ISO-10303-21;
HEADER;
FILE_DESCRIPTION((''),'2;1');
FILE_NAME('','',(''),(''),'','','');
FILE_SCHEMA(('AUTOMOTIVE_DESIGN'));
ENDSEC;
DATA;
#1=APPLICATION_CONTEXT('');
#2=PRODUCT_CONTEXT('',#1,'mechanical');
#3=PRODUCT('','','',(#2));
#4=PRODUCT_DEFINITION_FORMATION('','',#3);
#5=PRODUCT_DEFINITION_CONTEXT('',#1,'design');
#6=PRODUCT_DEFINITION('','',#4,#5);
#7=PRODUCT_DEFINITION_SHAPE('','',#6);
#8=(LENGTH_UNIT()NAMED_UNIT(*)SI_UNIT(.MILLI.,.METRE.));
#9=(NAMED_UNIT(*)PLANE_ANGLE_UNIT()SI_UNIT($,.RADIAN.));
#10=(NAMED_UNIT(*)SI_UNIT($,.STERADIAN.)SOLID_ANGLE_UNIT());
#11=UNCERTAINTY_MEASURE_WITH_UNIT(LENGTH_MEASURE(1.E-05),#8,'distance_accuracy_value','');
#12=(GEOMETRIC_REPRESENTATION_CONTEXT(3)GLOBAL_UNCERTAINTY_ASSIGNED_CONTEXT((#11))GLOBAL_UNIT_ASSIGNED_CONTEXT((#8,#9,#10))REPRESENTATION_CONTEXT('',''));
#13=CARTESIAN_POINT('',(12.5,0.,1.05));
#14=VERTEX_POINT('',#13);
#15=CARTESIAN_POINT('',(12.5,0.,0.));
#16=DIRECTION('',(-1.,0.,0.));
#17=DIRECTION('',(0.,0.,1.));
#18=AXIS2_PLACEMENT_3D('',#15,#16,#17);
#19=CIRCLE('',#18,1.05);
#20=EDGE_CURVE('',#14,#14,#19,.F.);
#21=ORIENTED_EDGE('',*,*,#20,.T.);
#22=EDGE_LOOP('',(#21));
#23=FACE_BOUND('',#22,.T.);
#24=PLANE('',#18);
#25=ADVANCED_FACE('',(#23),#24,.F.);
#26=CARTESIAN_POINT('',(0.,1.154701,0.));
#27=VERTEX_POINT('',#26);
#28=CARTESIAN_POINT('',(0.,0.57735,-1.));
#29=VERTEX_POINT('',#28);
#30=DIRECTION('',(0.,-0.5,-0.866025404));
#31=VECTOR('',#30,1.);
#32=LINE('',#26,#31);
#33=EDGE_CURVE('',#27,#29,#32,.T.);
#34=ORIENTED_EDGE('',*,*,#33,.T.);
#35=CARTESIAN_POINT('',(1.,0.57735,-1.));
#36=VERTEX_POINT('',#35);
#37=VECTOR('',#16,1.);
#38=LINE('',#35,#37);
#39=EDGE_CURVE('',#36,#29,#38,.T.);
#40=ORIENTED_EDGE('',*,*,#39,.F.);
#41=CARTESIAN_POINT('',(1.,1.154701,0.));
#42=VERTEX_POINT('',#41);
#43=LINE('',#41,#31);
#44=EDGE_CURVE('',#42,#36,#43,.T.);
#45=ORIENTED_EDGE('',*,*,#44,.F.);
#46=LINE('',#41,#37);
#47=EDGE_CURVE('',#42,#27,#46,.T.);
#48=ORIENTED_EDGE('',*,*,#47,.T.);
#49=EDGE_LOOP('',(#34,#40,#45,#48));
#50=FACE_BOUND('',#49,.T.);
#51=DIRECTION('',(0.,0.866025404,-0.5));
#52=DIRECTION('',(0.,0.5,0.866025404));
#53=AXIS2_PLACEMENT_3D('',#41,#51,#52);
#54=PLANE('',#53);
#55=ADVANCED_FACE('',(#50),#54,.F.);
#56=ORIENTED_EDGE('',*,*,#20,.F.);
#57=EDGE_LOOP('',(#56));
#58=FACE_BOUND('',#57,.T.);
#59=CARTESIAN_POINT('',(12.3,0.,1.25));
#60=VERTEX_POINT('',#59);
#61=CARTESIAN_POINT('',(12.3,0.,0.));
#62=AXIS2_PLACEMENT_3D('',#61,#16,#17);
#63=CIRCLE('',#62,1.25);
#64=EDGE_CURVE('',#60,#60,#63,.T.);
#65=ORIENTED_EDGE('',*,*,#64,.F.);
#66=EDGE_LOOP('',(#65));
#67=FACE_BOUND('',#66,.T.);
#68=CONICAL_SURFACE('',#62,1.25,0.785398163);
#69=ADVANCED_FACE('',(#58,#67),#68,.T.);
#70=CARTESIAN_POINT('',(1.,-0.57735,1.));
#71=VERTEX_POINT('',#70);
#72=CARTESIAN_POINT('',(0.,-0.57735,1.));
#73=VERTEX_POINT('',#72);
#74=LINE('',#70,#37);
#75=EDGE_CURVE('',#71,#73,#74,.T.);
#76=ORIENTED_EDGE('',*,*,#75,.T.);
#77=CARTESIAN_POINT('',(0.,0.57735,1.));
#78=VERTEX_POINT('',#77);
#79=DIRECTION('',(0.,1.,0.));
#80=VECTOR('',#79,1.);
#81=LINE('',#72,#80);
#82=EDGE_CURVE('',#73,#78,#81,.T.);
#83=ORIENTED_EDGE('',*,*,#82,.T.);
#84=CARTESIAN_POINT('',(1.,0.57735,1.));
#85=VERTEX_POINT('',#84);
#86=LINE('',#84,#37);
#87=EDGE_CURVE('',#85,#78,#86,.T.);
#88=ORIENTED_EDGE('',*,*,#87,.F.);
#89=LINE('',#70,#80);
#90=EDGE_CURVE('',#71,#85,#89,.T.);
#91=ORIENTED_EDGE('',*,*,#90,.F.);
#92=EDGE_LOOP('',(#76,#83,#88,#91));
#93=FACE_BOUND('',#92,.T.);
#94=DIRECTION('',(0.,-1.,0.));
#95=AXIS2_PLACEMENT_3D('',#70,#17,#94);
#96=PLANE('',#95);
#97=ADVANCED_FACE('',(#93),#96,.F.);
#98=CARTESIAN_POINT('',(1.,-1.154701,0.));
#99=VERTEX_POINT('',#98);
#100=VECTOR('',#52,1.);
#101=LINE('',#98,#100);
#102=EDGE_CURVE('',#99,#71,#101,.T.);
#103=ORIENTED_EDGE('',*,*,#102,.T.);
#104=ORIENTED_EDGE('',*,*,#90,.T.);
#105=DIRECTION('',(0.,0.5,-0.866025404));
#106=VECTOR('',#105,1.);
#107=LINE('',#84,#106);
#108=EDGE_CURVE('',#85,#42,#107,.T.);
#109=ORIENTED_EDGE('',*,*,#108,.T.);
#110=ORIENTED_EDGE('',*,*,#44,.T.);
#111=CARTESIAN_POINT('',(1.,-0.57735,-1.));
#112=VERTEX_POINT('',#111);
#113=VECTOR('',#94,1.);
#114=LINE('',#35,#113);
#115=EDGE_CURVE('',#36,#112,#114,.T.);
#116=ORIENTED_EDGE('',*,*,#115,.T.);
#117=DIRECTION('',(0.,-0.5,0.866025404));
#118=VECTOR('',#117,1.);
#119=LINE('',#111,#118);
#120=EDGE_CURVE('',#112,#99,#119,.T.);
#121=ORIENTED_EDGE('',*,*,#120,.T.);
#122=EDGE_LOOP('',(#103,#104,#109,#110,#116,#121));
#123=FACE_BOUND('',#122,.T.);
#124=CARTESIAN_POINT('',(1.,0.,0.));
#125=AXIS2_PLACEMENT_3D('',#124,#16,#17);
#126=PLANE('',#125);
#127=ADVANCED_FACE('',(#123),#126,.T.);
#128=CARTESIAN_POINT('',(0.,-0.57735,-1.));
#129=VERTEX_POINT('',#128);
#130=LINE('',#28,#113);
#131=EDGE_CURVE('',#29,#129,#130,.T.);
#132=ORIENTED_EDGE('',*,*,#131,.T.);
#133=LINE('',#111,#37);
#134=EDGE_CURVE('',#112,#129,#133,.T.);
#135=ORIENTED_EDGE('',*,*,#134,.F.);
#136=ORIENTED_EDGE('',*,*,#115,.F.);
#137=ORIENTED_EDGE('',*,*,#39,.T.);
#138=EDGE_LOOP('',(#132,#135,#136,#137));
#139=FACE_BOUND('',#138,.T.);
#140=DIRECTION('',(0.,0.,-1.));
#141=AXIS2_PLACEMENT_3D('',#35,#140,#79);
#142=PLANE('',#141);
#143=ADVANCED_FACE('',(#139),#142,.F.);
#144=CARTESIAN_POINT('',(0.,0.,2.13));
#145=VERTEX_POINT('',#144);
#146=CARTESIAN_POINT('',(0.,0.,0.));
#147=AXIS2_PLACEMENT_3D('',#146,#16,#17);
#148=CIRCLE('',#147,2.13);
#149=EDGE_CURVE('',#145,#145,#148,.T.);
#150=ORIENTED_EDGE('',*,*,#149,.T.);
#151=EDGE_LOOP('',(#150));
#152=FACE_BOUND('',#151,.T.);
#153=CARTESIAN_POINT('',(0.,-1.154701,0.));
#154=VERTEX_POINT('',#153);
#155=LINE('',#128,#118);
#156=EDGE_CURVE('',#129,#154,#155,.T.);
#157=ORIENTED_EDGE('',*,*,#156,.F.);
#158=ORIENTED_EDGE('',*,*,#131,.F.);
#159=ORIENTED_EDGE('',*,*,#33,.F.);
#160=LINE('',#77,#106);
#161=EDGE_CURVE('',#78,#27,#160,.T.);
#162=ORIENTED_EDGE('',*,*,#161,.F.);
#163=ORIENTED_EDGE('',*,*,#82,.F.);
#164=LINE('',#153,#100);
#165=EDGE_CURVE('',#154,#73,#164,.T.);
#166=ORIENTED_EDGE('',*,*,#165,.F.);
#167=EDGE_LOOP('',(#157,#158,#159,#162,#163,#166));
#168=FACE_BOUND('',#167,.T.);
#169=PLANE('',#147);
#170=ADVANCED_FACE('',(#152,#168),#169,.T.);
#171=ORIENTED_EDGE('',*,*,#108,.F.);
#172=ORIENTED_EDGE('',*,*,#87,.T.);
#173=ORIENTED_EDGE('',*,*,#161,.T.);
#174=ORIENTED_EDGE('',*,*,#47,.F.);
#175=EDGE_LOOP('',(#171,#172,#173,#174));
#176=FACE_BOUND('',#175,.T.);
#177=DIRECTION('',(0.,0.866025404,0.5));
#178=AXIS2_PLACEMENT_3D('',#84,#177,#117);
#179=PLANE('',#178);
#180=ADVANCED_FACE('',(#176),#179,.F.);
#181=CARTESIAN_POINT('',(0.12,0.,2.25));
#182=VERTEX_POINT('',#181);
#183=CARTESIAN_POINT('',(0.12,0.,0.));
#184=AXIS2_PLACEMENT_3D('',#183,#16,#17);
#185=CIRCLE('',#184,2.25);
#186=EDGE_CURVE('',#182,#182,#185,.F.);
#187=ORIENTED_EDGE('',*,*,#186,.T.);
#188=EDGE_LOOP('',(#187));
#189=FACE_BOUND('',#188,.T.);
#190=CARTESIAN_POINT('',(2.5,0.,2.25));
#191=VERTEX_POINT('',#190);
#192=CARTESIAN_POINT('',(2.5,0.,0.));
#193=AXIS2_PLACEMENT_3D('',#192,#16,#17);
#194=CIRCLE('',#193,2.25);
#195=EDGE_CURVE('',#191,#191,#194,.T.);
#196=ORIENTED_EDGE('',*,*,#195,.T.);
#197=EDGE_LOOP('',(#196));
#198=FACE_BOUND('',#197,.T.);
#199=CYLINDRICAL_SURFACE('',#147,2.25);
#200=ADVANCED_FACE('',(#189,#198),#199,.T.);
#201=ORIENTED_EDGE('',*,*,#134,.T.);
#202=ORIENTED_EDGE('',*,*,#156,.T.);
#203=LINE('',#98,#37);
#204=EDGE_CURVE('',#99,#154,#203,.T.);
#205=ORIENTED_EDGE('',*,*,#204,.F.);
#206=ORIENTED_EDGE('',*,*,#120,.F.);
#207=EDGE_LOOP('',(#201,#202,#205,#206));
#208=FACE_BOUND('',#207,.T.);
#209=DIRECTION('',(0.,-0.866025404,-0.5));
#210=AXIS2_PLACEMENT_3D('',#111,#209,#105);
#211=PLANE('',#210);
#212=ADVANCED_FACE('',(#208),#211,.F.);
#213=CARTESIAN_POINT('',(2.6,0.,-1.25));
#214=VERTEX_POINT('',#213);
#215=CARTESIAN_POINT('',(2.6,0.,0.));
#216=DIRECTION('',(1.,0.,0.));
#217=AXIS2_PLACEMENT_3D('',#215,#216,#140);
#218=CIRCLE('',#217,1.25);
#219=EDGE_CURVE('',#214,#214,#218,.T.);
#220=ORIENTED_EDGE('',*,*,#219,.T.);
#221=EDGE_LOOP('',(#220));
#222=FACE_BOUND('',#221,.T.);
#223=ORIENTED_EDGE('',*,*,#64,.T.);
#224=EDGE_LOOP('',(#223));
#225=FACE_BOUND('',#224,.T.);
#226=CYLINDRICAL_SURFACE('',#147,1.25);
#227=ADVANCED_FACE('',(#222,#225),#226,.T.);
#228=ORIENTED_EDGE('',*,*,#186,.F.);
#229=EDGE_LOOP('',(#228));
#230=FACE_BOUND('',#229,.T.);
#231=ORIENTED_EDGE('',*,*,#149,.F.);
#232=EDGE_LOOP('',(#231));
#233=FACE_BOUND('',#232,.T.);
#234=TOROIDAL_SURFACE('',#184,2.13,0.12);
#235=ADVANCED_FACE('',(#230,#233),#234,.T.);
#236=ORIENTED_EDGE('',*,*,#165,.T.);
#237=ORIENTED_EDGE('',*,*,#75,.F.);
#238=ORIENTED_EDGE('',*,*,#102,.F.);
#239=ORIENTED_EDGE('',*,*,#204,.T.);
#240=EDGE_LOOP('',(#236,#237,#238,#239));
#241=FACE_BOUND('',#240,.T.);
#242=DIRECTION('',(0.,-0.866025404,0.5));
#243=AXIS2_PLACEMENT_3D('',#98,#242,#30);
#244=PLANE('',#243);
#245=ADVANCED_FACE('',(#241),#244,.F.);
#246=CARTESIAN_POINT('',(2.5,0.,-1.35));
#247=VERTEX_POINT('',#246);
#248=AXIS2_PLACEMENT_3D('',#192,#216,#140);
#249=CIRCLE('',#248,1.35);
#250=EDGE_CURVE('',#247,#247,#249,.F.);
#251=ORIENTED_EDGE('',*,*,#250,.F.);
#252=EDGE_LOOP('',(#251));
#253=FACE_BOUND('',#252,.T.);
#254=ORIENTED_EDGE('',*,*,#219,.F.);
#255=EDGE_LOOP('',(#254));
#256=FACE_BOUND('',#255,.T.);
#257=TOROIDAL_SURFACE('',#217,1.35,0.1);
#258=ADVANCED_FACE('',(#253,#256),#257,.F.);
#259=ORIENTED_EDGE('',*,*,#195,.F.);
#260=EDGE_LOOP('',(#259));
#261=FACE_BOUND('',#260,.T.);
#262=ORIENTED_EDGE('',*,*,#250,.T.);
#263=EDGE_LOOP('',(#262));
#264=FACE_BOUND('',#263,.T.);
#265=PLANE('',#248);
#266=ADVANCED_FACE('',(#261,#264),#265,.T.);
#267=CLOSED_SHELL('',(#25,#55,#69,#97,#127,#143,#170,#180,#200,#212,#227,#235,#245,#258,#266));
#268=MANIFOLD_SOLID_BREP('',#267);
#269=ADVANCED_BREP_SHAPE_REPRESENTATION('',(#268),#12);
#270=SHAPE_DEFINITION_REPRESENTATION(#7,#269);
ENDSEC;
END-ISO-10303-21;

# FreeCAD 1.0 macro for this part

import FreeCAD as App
import Part
import Sketcher
Q = App.Units.Quantity


def edges_at(feature, points):
    """Names of the edges that pass closest to the given points."""
    edges = feature.Shape.Edges
    near = lambda p: min(range(len(edges)), key=lambda i: edges[i].distToShape(Part.Vertex(*p))[0])
    return sorted({f"Edge{near(p) + 1}" for p in points})

doc = App.newDocument("Part")
body = doc.addObject("PartDesign::Body", "Body")

# Sketch on XY plane
sketch1 = body.newObject("Sketcher::SketchObject", "Sketch")
sketch1.AttachmentSupport = (doc.getObject("XY_Plane"), [""])
sketch1.MapMode = "FlatFace"
sketch1.addGeometry(Part.LineSegment(App.Vector(12.5, 0, 0), App.Vector(12.5, 1.2, 0)), False)
sketch1.addGeometry(Part.LineSegment(App.Vector(12.5, 1.2, 0), App.Vector(2.5, 1.2, 0)), False)
sketch1.addGeometry(Part.LineSegment(App.Vector(2.5, 1.2, 0), App.Vector(2.5, 2.2, 0)), False)
sketch1.addGeometry(Part.LineSegment(App.Vector(2.5, 2.2, 0), App.Vector(0, 2.2, 0)), False)
sketch1.addGeometry(Part.LineSegment(App.Vector(0, 2.2, 0), App.Vector(0, 0, 0)), False)
sketch1.addGeometry(Part.LineSegment(App.Vector(0, 0, 0), App.Vector(12.5, 0, 0)), False)
sketch1.addConstraint(Sketcher.Constraint("Coincident", 0, 2, 1, 1))
sketch1.addConstraint(Sketcher.Constraint("Coincident", 1, 2, 2, 1))
sketch1.addConstraint(Sketcher.Constraint("Coincident", 2, 2, 3, 1))
sketch1.addConstraint(Sketcher.Constraint("Coincident", 3, 2, 4, 1))
sketch1.addConstraint(Sketcher.Constraint("Coincident", 4, 2, 5, 1))
sketch1.addConstraint(Sketcher.Constraint("Coincident", 5, 2, 0, 1))
sketch1.addConstraint(Sketcher.Constraint("Vertical", 0))
sketch1.addConstraint(Sketcher.Constraint("Horizontal", 1))
sketch1.addConstraint(Sketcher.Constraint("Vertical", 2))
sketch1.addConstraint(Sketcher.Constraint("Horizontal", 3))
sketch1.addConstraint(Sketcher.Constraint("Vertical", 4))
sketch1.addConstraint(Sketcher.Constraint("Horizontal", 5))
sketch1.addConstraint(Sketcher.Constraint("Coincident", 4, 2, -1, 1))
sketch1.addConstraint(Sketcher.Constraint("DistanceX", 1, 2, 1, 1, Q("10 mm")))
sketch1.addConstraint(Sketcher.Constraint("DistanceY", 2, 1, 2, 2, Q("1 mm")))
sketch1.addConstraint(Sketcher.Constraint("DistanceX", 3, 2, 3, 1, Q("2.5 mm")))
sketch1.addConstraint(Sketcher.Constraint("DistanceY", 0, 1, 0, 2, Q("1.25 mm")))
revolution = body.newObject("PartDesign::Revolution", "Revolution")
revolution.Profile = sketch1
revolution.ReferenceAxis = (sketch1, ["H_Axis"])
revolution.Angle = 360
doc.recompute()

fillet = body.newObject("PartDesign::Fillet", "Fillet")
fillet.Base = (revolution, edges_at(revolution, [(2.5, 0, -1.25)]))
fillet.Radius = 0.1
doc.recompute()

fillet2 = body.newObject("PartDesign::Fillet", "Fillet001")
fillet2.Base = (fillet, edges_at(fillet, [(0, 0, -2.25)]))
fillet2.Radius = 0.12
doc.recompute()

chamfer = body.newObject("PartDesign::Chamfer", "Chamfer")
chamfer.Base = (fillet2, edges_at(fillet2, [(12.5, 0, -1.25)]))
chamfer.Size = 0.2

# Sketch on YZ plane
sketch2 = body.newObject("Sketcher::SketchObject", "Sketch001")
sketch2.AttachmentSupport = (doc.getObject("YZ_Plane"), [""])
sketch2.MapMode = "FlatFace"
sketch2.addGeometry(Part.LineSegment(App.Vector(1.2, 0, 0), App.Vector(0.6, -1, 0)), False)
sketch2.addGeometry(Part.LineSegment(App.Vector(0.6, -1, 0), App.Vector(-0.6, -1, 0)), False)
sketch2.addGeometry(Part.LineSegment(App.Vector(-0.6, -1, 0), App.Vector(-1.2, 0, 0)), False)
sketch2.addGeometry(Part.LineSegment(App.Vector(-1.2, 0, 0), App.Vector(-0.6, 1, 0)), False)
sketch2.addGeometry(Part.LineSegment(App.Vector(-0.6, 1, 0), App.Vector(0.6, 1, 0)), False)
sketch2.addGeometry(Part.LineSegment(App.Vector(0.6, 1, 0), App.Vector(1.2, 0, 0)), False)
sketch2.addConstraint(Sketcher.Constraint("Coincident", 0, 2, 1, 1))
sketch2.addConstraint(Sketcher.Constraint("Coincident", 1, 2, 2, 1))
sketch2.addConstraint(Sketcher.Constraint("Coincident", 2, 2, 3, 1))
sketch2.addConstraint(Sketcher.Constraint("Coincident", 3, 2, 4, 1))
sketch2.addConstraint(Sketcher.Constraint("Coincident", 4, 2, 5, 1))
sketch2.addConstraint(Sketcher.Constraint("Coincident", 5, 2, 0, 1))
sketch2.addConstraint(Sketcher.Constraint("Horizontal", 1))
sketch2.addConstraint(Sketcher.Constraint("Horizontal", 4))
sketch2.addConstraint(Sketcher.Constraint("Symmetric", 0, 2, 3, 2, -1, 1))
sketch2.addConstraint(Sketcher.Constraint("Symmetric", 2, 2, 5, 2, -1, 1))
sketch2.addConstraint(Sketcher.Constraint("PointOnObject", 2, 2, -1))
sketch2.addConstraint(Sketcher.Constraint("Parallel", 2, 5))
sketch2.addConstraint(Sketcher.Constraint("Vertical", 1, 2, 3, 2))
sketch2.addConstraint(Sketcher.Constraint("Angle", 0, Q("-120 deg")))
sketch2.addConstraint(Sketcher.Constraint("DistanceY", 0, 2, -1, 1, Q("1 mm")))
sketch2.addConstraint(Sketcher.Constraint("DistanceX", 1, 2, 1, 1, Q("1.154701 mm")))
pocket1 = body.newObject("PartDesign::Pocket", "Pocket")
pocket1.Profile = sketch2
pocket1.Length = 1
pocket1.Reversed = True

doc.recompute()
